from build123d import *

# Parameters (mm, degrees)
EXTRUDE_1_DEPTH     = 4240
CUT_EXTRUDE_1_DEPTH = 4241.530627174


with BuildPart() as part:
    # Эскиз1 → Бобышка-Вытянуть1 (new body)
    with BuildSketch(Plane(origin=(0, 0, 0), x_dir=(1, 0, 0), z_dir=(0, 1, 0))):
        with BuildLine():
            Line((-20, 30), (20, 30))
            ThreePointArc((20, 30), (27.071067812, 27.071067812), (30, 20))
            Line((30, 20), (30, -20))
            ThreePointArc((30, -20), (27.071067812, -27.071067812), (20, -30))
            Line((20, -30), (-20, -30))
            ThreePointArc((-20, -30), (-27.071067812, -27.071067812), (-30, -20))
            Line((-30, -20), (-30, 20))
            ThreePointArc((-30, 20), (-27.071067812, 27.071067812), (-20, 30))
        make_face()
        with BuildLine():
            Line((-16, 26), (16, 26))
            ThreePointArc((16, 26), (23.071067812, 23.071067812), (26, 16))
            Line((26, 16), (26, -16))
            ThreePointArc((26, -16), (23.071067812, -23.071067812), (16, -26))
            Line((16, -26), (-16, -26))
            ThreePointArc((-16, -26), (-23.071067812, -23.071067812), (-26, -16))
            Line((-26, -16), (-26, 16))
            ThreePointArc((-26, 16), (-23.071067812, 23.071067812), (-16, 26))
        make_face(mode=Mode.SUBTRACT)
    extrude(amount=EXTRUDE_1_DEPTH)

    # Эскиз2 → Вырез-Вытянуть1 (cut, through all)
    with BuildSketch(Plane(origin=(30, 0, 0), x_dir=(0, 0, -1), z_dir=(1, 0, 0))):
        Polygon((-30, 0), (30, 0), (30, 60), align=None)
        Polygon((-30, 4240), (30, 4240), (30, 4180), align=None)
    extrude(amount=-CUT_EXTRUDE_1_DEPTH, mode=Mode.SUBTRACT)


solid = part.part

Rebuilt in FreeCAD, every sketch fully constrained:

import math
import FreeCAD as App
import Part
import Sketcher
from FreeCAD import Vector
Q = App.Units.Quantity

doc = App.newDocument("Part")
params = doc.addObject("Spreadsheet::Sheet", "Params")
for row, (alias, value) in enumerate([
    ("sketch1_radius", "10 mm"),
    ("sketch1_width", "40 mm"),
    ("sketch1_width2", "32 mm"),
    ("pad1_length", "4240 mm"),
    ("sketch2_width", "60 mm"),
], start=1):
    params.set(f"A{row}", alias)
    params.set(f"B{row}", "=" + value)
    params.setAlias(f"B{row}", alias)

body = doc.addObject("PartDesign::Body", "Body")

# Sketch on XZ plane
sketch1 = body.newObject("Sketcher::SketchObject", "Sketch")
sketch1.AttachmentSupport = (doc.getObject("XZ_Plane"), [""])
sketch1.MapMode = "FlatFace"
sketch1.addGeometry([
    Part.LineSegment(Vector(20, -30, 0), Vector(-20, -30, 0)),  # 0
    Part.ArcOfCircle(Part.Circle(Vector(-20, -20, 0), Vector(0, 0, 1), 10), math.radians(180), math.radians(270)),  # 1
    Part.LineSegment(Vector(-30, -20, 0), Vector(-30, 20, 0)),  # 2
    Part.ArcOfCircle(Part.Circle(Vector(-20, 20, 0), Vector(0, 0, 1), 10), math.radians(90), math.radians(180)),  # 3
    Part.LineSegment(Vector(-20, 30, 0), Vector(20, 30, 0)),  # 4
    Part.ArcOfCircle(Part.Circle(Vector(20, 20, 0), Vector(0, 0, 1), 10), math.radians(0), math.radians(90)),  # 5
    Part.LineSegment(Vector(30, 20, 0), Vector(30, -20, 0)),  # 6
    Part.ArcOfCircle(Part.Circle(Vector(20, -20, 0), Vector(0, 0, 1), 10), math.radians(-90), math.radians(0)),  # 7
    Part.LineSegment(Vector(-16, -26, 0), Vector(16, -26, 0)),  # 8
    Part.ArcOfCircle(Part.Circle(Vector(16, -16, 0), Vector(0, 0, 1), 10), math.radians(-90), math.radians(0)),  # 9
    Part.LineSegment(Vector(26, -16, 0), Vector(26, 16, 0)),  # 10
    Part.ArcOfCircle(Part.Circle(Vector(16, 16, 0), Vector(0, 0, 1), 10), math.radians(0), math.radians(90)),  # 11
    Part.LineSegment(Vector(16, 26, 0), Vector(-16, 26, 0)),  # 12
    Part.ArcOfCircle(Part.Circle(Vector(-16, 16, 0), Vector(0, 0, 1), 10), math.radians(90), math.radians(180)),  # 13
    Part.LineSegment(Vector(-26, 16, 0), Vector(-26, -16, 0)),  # 14
    Part.ArcOfCircle(Part.Circle(Vector(-16, -16, 0), Vector(0, 0, 1), 10), math.radians(180), math.radians(270)),  # 15
], False)
sketch1.addConstraint([
    Sketcher.Constraint("Tangent", 0, 2, 1, 2),
    Sketcher.Constraint("Tangent", 1, 1, 2, 1),
    Sketcher.Constraint("Tangent", 2, 2, 3, 2),
    Sketcher.Constraint("Tangent", 3, 1, 4, 1),
    Sketcher.Constraint("Tangent", 4, 2, 5, 2),
    Sketcher.Constraint("Tangent", 5, 1, 6, 1),
    Sketcher.Constraint("Tangent", 6, 2, 7, 2),
    Sketcher.Constraint("Tangent", 7, 1, 0, 1),
    Sketcher.Constraint("Tangent", 8, 2, 9, 1),
    Sketcher.Constraint("Tangent", 9, 2, 10, 1),
    Sketcher.Constraint("Tangent", 10, 2, 11, 1),
    Sketcher.Constraint("Tangent", 11, 2, 12, 1),
    Sketcher.Constraint("Tangent", 12, 2, 13, 1),
    Sketcher.Constraint("Tangent", 13, 2, 14, 1),
    Sketcher.Constraint("Tangent", 14, 2, 15, 1),
    Sketcher.Constraint("Tangent", 15, 2, 8, 1),
    Sketcher.Constraint("Horizontal", 0),
    Sketcher.Constraint("Vertical", 2),
    Sketcher.Constraint("Horizontal", 4),
    Sketcher.Constraint("Vertical", 6),
    Sketcher.Constraint("Horizontal", 8),
    Sketcher.Constraint("Vertical", 10),
    Sketcher.Constraint("Horizontal", 12),
    Sketcher.Constraint("Vertical", 14),
    Sketcher.Constraint("Equal", 1, 3),
    Sketcher.Constraint("Equal", 3, 5),
    Sketcher.Constraint("Equal", 5, 7),
    Sketcher.Constraint("Equal", 7, 9),
    Sketcher.Constraint("Equal", 9, 11),
    Sketcher.Constraint("Equal", 11, 13),
    Sketcher.Constraint("Equal", 13, 15),
    Sketcher.Constraint("Symmetric", 1, 3, 5, 3, -1, 1),
    Sketcher.Constraint("Symmetric", 9, 3, 13, 3, -1, 1),
    Sketcher.Constraint("Equal", 4, 2),
    Sketcher.Constraint("Equal", 12, 10),
    Sketcher.Constraint("Radius", 1, Q("10 mm")),
    Sketcher.Constraint("DistanceX", 0, 2, 0, 1, Q("40 mm")),
    Sketcher.Constraint("DistanceX", 8, 1, 8, 2, Q("32 mm")),
])
sketch1.setExpression("Constraints[35]", "Params.sketch1_radius")
sketch1.setExpression("Constraints[36]", "Params.sketch1_width")
sketch1.setExpression("Constraints[37]", "Params.sketch1_width2")
pad1 = body.newObject("PartDesign::Pad", "Pad")
pad1.Profile = sketch1
pad1.setExpression("Length", "Params.pad1_length")
pad1.Reversed = True

# Sketch on YZ plane
sketch2 = body.newObject("Sketcher::SketchObject", "Sketch001")
sketch2.AttachmentSupport = (doc.getObject("YZ_Plane"), [""])
sketch2.MapMode = "FlatFace"
sketch2.AttachmentOffset = App.Placement(Vector(0, 0, 30), App.Rotation())
sketch2.addGeometry([
    Part.LineSegment(Vector(0, 30, 0), Vector(0, -30, 0)),  # 0
    Part.LineSegment(Vector(0, -30, 0), Vector(60, -30, 0)),  # 1
    Part.LineSegment(Vector(60, -30, 0), Vector(0, 30, 0)),  # 2
    Part.LineSegment(Vector(4240, -30, 0), Vector(4240, 30, 0)),  # 3
    Part.LineSegment(Vector(4240, 30, 0), Vector(4180, -30, 0)),  # 4
    Part.LineSegment(Vector(4180, -30, 0), Vector(4240, -30, 0)),  # 5
], False)
sketch2.addConstraint([
    Sketcher.Constraint("Coincident", 0, 2, 1, 1),
    Sketcher.Constraint("Coincident", 1, 2, 2, 1),
    Sketcher.Constraint("Coincident", 2, 2, 0, 1),
    Sketcher.Constraint("Coincident", 3, 2, 4, 1),
    Sketcher.Constraint("Coincident", 4, 2, 5, 1),
    Sketcher.Constraint("Coincident", 5, 2, 3, 1),
    Sketcher.Constraint("Vertical", 0),
    Sketcher.Constraint("Horizontal", 1),
    Sketcher.Constraint("Vertical", 3),
    Sketcher.Constraint("Horizontal", 5),
    Sketcher.Constraint("Symmetric", 0, 2, 2, 2, -1, 1),
    Sketcher.Constraint("Perpendicular", 2, 4),
    Sketcher.Constraint("Horizontal", 2, 2, 3, 2),
    Sketcher.Constraint("Horizontal", 1, 2, 4, 2),
    Sketcher.Constraint("Equal", 1, 5),
    Sketcher.Constraint("DistanceX", 1, 1, 1, 2, Q("60 mm")),
    Sketcher.Constraint("DistanceX", -1, 1, 3, 2, Q("4240 mm")),
])
sketch2.setExpression("Constraints[15]", "Params.sketch2_width")
pocket1 = body.newObject("PartDesign::Pocket", "Pocket")
pocket1.Profile = sketch2
pocket1.Type = "ThroughAll"

doc.recompute()
